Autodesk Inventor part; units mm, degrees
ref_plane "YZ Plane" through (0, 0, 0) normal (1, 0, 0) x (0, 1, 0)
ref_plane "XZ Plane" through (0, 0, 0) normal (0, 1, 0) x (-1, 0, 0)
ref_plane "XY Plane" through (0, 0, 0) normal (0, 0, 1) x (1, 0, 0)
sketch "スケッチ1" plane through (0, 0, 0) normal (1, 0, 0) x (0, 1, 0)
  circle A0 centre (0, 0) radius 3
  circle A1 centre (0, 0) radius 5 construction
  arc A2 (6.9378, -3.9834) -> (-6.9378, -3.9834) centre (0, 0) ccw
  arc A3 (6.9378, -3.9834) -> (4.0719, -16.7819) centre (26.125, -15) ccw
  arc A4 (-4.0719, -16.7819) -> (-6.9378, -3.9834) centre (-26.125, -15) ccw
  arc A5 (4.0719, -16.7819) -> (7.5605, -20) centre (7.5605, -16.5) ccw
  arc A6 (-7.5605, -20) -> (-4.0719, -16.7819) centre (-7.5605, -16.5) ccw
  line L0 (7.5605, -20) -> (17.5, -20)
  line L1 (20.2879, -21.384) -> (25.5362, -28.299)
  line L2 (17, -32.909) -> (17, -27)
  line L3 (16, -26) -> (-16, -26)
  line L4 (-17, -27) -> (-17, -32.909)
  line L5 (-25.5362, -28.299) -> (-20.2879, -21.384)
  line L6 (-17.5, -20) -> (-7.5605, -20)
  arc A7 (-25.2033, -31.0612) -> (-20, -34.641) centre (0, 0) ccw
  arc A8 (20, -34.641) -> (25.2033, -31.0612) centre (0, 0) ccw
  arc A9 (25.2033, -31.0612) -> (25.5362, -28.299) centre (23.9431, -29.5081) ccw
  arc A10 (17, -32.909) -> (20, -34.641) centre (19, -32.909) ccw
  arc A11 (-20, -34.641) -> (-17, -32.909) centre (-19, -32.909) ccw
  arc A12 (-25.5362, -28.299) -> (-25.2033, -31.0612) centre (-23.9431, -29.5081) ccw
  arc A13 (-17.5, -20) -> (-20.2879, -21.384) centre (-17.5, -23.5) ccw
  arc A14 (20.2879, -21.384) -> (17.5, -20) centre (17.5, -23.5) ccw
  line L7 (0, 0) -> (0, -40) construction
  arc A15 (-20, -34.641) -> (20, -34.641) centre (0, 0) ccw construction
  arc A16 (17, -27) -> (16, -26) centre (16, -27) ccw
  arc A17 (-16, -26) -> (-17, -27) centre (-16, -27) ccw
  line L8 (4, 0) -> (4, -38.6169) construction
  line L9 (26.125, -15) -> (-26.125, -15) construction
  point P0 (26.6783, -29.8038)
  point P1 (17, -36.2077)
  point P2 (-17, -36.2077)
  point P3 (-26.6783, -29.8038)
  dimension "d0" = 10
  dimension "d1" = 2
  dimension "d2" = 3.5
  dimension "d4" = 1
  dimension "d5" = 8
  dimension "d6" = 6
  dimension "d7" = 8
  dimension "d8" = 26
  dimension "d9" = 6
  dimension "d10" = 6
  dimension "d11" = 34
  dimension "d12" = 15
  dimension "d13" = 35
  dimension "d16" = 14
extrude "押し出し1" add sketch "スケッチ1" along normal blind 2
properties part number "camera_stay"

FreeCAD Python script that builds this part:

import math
import FreeCAD as App
import Part
import Sketcher
from FreeCAD import Vector

doc = App.newDocument("Part")
body = doc.addObject("PartDesign::Body", "Body")

# Sketch on YZ plane
sketch1 = body.newObject("Sketcher::SketchObject", "Sketch")
sketch1.AttachmentSupport = (doc.getObject("YZ_Plane"), [""])
sketch1.MapMode = "FlatFace"
sketch1.addGeometry([
    Part.ArcOfCircle(Part.Circle(Vector(26.125, -15, 0), Vector(0, 0, 1), 22.124966), math.radians(150.137108), math.radians(184.619488)),  # 0
    Part.ArcOfCircle(Part.Circle(Vector(0, 0, 0), Vector(0, 0, 1), 8.000034), math.radians(-29.862674), math.radians(209.862674)),  # 1
    Part.ArcOfCircle(Part.Circle(Vector(-26.125, -15, 0), Vector(0, 0, 1), 22.124972), math.radians(-4.619488), math.radians(29.862892)),  # 2
    Part.ArcOfCircle(Part.Circle(Vector(-7.5605, -16.5, 0), Vector(0, 0, 1), 3.5), math.radians(-90), math.radians(-4.619808)),  # 3
    Part.LineSegment(Vector(-7.5605, -20, 0), Vector(-17.5, -20, 0)),  # 4
    Part.ArcOfCircle(Part.Circle(Vector(-17.5, -23.5, 0), Vector(0, 0, 1), 3.5), math.radians(90), math.radians(142.801712)),  # 5
    Part.LineSegment(Vector(-20.2879, -21.384, 0), Vector(-25.5362, -28.299, 0)),  # 6
    Part.ArcOfCircle(Part.Circle(Vector(-23.9431, -29.5081, 0), Vector(0, 0, 1), 1.999973), math.radians(142.802937), math.radians(230.943799)),  # 7
    Part.ArcOfCircle(Part.Circle(Vector(-0.006714, -0.008977, 0), Vector(0, 0, 1), 39.988855), math.radians(-129.056779), math.radians(-119.998112)),  # 8
    Part.ArcOfCircle(Part.Circle(Vector(-19, -32.909, 0), Vector(0, 0, 1), 1.999956), math.radians(-120.000728), math.radians(0)),  # 9
    Part.LineSegment(Vector(-17, -32.909, 0), Vector(-17, -27, 0)),  # 10
    Part.ArcOfCircle(Part.Circle(Vector(-16, -27, 0), Vector(0, 0, 1), 1), math.radians(90), math.radians(180)),  # 11
    Part.LineSegment(Vector(-16, -26, 0), Vector(16, -26, 0)),  # 12
    Part.ArcOfCircle(Part.Circle(Vector(16, -27, 0), Vector(0, 0, 1), 1), math.radians(0), math.radians(90)),  # 13
    Part.LineSegment(Vector(17, -27, 0), Vector(17, -32.909, 0)),  # 14
    Part.ArcOfCircle(Part.Circle(Vector(19, -32.909, 0), Vector(0, 0, 1), 2), math.radians(180), math.radians(300.000728)),  # 15
    Part.ArcOfCircle(Part.Circle(Vector(-0.005987, 0.009484, 0), Vector(0, 0, 1), 40.011193), math.radians(-59.999354), math.radians(-50.945755)),  # 16
    Part.ArcOfCircle(Part.Circle(Vector(23.9431, -29.5081, 0), Vector(0, 0, 1), 2.000056), math.radians(-50.943799), math.radians(37.197063)),  # 17
    Part.LineSegment(Vector(25.5362, -28.299, 0), Vector(20.2879, -21.384, 0)),  # 18
    Part.ArcOfCircle(Part.Circle(Vector(17.5, -23.5, 0), Vector(0, 0, 1), 3.499977), math.radians(37.198288), math.radians(90)),  # 19
    Part.LineSegment(Vector(17.5, -20, 0), Vector(7.5605, -20, 0)),  # 20
    Part.ArcOfCircle(Part.Circle(Vector(7.5605, -16.5, 0), Vector(0, 0, 1), 3.499971), math.radians(-175.380192), math.radians(-90)),  # 21
    Part.Circle(Vector(0, 0, 0), Vector(0, 0, 1), 3),  # 22
], False)
sketch1.addConstraint([
    Sketcher.Constraint("Tangent", 0, 1, 1, 1),
    Sketcher.Constraint("Tangent", 1, 2, 2, 2),
    Sketcher.Constraint("Tangent", 2, 1, 3, 2),
    Sketcher.Constraint("Tangent", 3, 1, 4, 1),
    Sketcher.Constraint("Tangent", 4, 2, 5, 1),
    Sketcher.Constraint("Tangent", 5, 2, 6, 1),
    Sketcher.Constraint("Tangent", 6, 2, 7, 1),
    Sketcher.Constraint("Tangent", 7, 2, 8, 1),
    Sketcher.Constraint("Tangent", 8, 2, 9, 1),
    Sketcher.Constraint("Tangent", 9, 2, 10, 1),
    Sketcher.Constraint("Tangent", 10, 2, 11, 2),
    Sketcher.Constraint("Tangent", 11, 1, 12, 1),
    Sketcher.Constraint("Tangent", 12, 2, 13, 2),
    Sketcher.Constraint("Tangent", 13, 1, 14, 1),
    Sketcher.Constraint("Tangent", 14, 2, 15, 1),
    Sketcher.Constraint("Tangent", 15, 2, 16, 1),
    Sketcher.Constraint("Tangent", 16, 2, 17, 1),
    Sketcher.Constraint("Tangent", 17, 2, 18, 1),
    Sketcher.Constraint("Tangent", 18, 2, 19, 1),
    Sketcher.Constraint("Tangent", 19, 2, 20, 1),
    Sketcher.Constraint("Tangent", 20, 2, 21, 2),
    Sketcher.Constraint("Tangent", 21, 1, 0, 2),
    Sketcher.Constraint("Horizontal", 4),
    Sketcher.Constraint("Vertical", 10),
    Sketcher.Constraint("Horizontal", 12),
    Sketcher.Constraint("Vertical", 14),
    Sketcher.Constraint("Horizontal", 20),
    Sketcher.Constraint("Coincident", 1, 3, -1, 1),
    Sketcher.Constraint("Coincident", 22, 3, -1, 1),
    Sketcher.Constraint("Equal", 0, 2),
    Sketcher.Constraint("Equal", 3, 5),
    Sketcher.Constraint("Equal", 7, 9),
    Sketcher.Constraint("Equal", 11, 13),
    Sketcher.Constraint("Equal", 9, 15),
    Sketcher.Constraint("Equal", 15, 17),
    Sketcher.Constraint("Equal", 5, 19),
    Sketcher.Constraint("Equal", 19, 21),
    Sketcher.Constraint("Symmetric", 9, 3, 15, 3, -2),
    Sketcher.Constraint("Symmetric", 7, 3, 17, 3, -2),
    Sketcher.Constraint("Symmetric", 5, 3, 19, 3, -2),
    Sketcher.Constraint("Horizontal", 0, 3, 2, 3),
    Sketcher.Constraint("Diameter", 22, 6.0),
    Sketcher.Constraint("Radius", 1, 8.0),
    Sketcher.Constraint("Radius", 7, 2.0),
    Sketcher.Constraint("Radius", 11, 1.0),
    Sketcher.Constraint("Radius", 3, 3.5),
    Sketcher.Constraint("DistanceY", 0, 3, -1, 1, 15.0),
    Sketcher.Constraint("DistanceY", 11, 1, -1, 1, 26.0),
    Sketcher.Constraint("DistanceX", 11, 3, 15, 3, 35.0),
    Sketcher.Constraint("DistanceY", 11, 1, 4, 2, 6.0),
    Sketcher.Constraint("DistanceX", 15, 3, 15, 2, 1.0),
    Sketcher.Constraint("Radius", 0, 22.125),
    Sketcher.Constraint("DistanceX", 5, 3, -1, 1, 17.5),
    Sketcher.Constraint("Radius", 8, 39.9889),
    Sketcher.Constraint("Radius", 16, 40.0112),
    Sketcher.Constraint("DistanceY", 10, 1, 10, 2, 5.909),
    Sketcher.Constraint("DistanceY", 9, 3, 6, 2, 4.61),
])
pad1 = body.newObject("PartDesign::Pad", "Pad")
pad1.Profile = sketch1
pad1.Length = 2

doc.recompute()
